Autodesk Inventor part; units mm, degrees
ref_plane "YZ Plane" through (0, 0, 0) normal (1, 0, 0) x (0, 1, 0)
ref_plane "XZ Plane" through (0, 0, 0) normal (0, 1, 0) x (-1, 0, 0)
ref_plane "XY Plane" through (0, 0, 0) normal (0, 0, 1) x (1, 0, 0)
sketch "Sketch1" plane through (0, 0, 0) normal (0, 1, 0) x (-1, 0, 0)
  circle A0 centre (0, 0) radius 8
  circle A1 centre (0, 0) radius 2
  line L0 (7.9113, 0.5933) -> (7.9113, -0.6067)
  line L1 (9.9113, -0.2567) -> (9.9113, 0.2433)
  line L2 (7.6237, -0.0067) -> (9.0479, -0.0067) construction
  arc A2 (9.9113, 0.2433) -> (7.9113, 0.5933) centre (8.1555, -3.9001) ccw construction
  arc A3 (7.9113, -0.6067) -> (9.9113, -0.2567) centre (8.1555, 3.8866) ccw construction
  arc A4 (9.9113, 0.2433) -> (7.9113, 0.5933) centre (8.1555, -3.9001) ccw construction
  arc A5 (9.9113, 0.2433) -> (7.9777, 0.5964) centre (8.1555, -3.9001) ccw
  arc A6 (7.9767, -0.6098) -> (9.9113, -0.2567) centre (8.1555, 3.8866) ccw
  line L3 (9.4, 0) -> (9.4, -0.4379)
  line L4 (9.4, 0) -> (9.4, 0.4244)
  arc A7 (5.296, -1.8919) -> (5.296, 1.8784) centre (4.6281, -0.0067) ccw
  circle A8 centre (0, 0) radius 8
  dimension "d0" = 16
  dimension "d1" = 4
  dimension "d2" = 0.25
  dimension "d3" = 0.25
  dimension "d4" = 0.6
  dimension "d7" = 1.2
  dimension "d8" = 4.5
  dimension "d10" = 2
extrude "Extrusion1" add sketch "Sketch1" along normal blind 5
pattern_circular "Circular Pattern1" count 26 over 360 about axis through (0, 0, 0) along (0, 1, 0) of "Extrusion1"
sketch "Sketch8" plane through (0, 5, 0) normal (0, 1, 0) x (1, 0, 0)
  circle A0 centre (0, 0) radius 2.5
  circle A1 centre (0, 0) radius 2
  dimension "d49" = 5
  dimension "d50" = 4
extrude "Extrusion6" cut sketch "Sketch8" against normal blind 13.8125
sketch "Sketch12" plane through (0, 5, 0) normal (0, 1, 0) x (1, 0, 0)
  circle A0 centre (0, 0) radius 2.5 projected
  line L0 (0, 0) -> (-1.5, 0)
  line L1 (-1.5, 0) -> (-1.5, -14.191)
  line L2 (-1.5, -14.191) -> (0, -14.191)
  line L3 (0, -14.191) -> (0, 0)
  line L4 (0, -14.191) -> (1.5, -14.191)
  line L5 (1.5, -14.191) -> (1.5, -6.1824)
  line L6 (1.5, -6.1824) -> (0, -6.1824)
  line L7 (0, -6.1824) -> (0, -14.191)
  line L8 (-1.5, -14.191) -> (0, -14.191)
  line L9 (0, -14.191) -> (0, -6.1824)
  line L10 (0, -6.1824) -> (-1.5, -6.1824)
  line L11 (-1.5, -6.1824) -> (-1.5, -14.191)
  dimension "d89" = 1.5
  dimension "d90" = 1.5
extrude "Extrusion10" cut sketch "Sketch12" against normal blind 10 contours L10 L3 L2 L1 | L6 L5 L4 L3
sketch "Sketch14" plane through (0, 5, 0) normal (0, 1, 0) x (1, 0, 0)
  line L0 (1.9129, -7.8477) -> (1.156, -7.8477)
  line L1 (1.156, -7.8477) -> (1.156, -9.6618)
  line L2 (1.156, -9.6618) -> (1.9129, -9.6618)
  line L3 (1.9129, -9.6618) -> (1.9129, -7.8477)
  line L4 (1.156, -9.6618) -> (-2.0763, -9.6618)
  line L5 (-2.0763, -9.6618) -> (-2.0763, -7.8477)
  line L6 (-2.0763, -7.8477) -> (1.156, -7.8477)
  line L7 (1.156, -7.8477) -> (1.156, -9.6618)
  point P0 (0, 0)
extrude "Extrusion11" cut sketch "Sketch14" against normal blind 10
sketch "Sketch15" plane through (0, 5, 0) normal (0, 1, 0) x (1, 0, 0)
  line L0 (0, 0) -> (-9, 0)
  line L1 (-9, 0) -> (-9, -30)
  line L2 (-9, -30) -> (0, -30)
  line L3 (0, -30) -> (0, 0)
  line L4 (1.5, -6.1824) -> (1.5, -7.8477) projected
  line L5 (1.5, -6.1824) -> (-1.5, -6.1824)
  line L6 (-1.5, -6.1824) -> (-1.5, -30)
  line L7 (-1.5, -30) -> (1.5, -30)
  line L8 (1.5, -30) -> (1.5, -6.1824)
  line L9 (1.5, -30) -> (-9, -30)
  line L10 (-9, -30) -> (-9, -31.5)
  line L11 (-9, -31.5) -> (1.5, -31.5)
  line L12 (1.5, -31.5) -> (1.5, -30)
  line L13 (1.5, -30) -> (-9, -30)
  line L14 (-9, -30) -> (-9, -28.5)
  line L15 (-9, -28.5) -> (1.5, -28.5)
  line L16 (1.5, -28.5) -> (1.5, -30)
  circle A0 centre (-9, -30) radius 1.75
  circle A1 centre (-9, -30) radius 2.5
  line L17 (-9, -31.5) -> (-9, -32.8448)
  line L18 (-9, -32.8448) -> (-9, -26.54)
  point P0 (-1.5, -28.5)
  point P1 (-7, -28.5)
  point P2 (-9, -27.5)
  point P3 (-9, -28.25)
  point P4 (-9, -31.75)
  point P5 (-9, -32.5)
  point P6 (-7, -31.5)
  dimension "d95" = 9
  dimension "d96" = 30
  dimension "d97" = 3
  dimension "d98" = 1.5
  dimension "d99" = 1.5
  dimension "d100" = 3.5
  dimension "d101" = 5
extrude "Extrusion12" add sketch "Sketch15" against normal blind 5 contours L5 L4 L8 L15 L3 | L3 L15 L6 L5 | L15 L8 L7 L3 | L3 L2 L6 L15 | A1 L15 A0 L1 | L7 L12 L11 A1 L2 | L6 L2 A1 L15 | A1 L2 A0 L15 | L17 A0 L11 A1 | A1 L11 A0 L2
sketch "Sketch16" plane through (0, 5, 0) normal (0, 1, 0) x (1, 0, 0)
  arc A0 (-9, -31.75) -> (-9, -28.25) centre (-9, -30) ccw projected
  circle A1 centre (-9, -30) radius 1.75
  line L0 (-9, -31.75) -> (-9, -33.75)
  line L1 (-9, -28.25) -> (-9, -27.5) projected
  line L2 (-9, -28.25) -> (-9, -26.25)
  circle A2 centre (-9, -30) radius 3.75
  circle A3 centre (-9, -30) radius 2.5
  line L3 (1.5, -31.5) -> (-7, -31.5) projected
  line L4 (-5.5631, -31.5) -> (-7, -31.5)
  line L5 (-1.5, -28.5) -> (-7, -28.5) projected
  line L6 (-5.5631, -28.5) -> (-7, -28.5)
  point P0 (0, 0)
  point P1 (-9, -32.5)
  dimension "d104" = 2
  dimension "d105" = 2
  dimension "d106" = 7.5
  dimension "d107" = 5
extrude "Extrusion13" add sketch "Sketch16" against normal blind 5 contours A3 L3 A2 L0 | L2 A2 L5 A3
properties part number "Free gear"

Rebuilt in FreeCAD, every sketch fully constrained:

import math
import FreeCAD as App
import Part
import Sketcher


def add_polygon(sketch, points):
    """Adds a closed chain of lines whose ends are joined by coincident constraints."""
    first, n = sketch.GeometryCount, len(points)
    for a, b in zip(points, points[1:] + points[:1]):
        sketch.addGeometry(Part.LineSegment(App.Vector(*a, 0), App.Vector(*b, 0)), False)
    for i in range(n):
        sketch.addConstraint(Sketcher.Constraint("Coincident", first + i, 2, first + (i + 1) % n, 1))

doc = App.newDocument("Part")
body = doc.addObject("PartDesign::Body", "Body")

sketch1 = body.newObject("Sketcher::SketchObject", "Sketch")
sketch1.AttachmentSupport = (doc.getObject("XZ_Plane"), [""])
sketch1.MapMode = "FlatFace"
sketch1.addGeometry([
    Part.ArcOfCircle(Part.Circle(App.Vector(0, 0, 0), App.Vector(0, 0, 1), 8), math.radians(-176), math.radians(176)),
    Part.ArcOfCircle(Part.Circle(App.Vector(-8.2, 3.9, 0), App.Vector(0, 0, 1), 4.5), math.radians(-113), math.radians(-88)),
    Part.LineSegment(App.Vector(-9.9, -0.3, 0), App.Vector(-9.9, 0.2, 0)),
    Part.ArcOfCircle(Part.Circle(App.Vector(-8.2, -3.9, 0), App.Vector(0, 0, 1), 4.5), math.radians(88), math.radians(113)),
    Part.Circle(App.Vector(0, 0, 0), App.Vector(0, 0, 1), 2),
], False)
sketch1.addConstraint([
    Sketcher.Constraint("Coincident", 0, 1, 1, 2),
    Sketcher.Constraint("Coincident", 1, 1, 2, 1),
    Sketcher.Constraint("Coincident", 2, 2, 3, 2),
    Sketcher.Constraint("Coincident", 3, 1, 0, 2),
    Sketcher.Constraint("Vertical", 2),
    Sketcher.Constraint("Coincident", 0, 3, -1, 1),
    Sketcher.Constraint("Coincident", 4, 3, -1, 1),
    Sketcher.Constraint("Diameter", 4, 4.0),
    Sketcher.Constraint("Radius", 0, 8.0),
    Sketcher.Constraint("Radius", 1, 4.5),
    Sketcher.Constraint("DistanceY", 2, 1, 2, 2, 0.5),
    Sketcher.Constraint("Radius", 3, 4.499),
    Sketcher.Constraint("DistanceY", 3, 3, -1, 1, 3.899),
    Sketcher.Constraint("DistanceX", 3, 3, 0, 1, 0.179),
    Sketcher.Constraint("DistanceY", 0, 1, 2, 2, 0.853),
    Sketcher.Constraint("DistanceX", 3, 1, 0, 1, 0.001),
])
pad1 = body.newObject("PartDesign::Pad", "Pad")
pad1.Profile = sketch1
pad1.Length = 5
pad1.Reversed = True
doc.recompute()

polarpattern = body.newObject("PartDesign::PolarPattern", "PolarPattern")
polarpattern.Originals = [pad1]
polarpattern.Axis = (doc.getObject("Y_Axis"), [""])
polarpattern.Angle = 360
polarpattern.Occurrences = 26
body.Tip = polarpattern

sketch2 = body.newObject("Sketcher::SketchObject", "Sketch001")
sketch2.AttachmentSupport = (doc.getObject("XZ_Plane"), [""])
sketch2.MapMode = "FlatFace"
sketch2.AttachmentOffset = App.Placement(App.Vector(0, 0, -5), App.Rotation())
sketch2.addGeometry([
    Part.Circle(App.Vector(0, 0, 0), App.Vector(0, 0, 1), 2.5),
    Part.Circle(App.Vector(0, 0, 0), App.Vector(0, 0, 1), 2),
], False)
sketch2.addConstraint([
    Sketcher.Constraint("Coincident", 0, 3, -1, 1),
    Sketcher.Constraint("Coincident", 1, 3, -1, 1),
    Sketcher.Constraint("Diameter", 0, 5.0),
    Sketcher.Constraint("Diameter", 1, 4.0),
])
pocket1 = body.newObject("PartDesign::Pocket", "Pocket")
pocket1.Profile = sketch2
pocket1.Length = 13.8125
pocket1.Reversed = True

sketch3 = body.newObject("Sketcher::SketchObject", "Sketch002")
sketch3.AttachmentSupport = (doc.getObject("XZ_Plane"), [""])
sketch3.MapMode = "FlatFace"
sketch3.AttachmentOffset = App.Placement(App.Vector(0, 0, -5), App.Rotation())
add_polygon(sketch3, [(-1.5, 6.2), (-1.5, 14.2), (1.5, 14.2), (1.5, 6.2)])
sketch3.addConstraint([
    Sketcher.Constraint("Vertical", 0),
    Sketcher.Constraint("Horizontal", 1),
    Sketcher.Constraint("Vertical", 2),
    Sketcher.Constraint("Horizontal", 3),
    Sketcher.Constraint("DistanceX", 0, 2, -1, 1, 1.5),
    Sketcher.Constraint("DistanceX", -1, 1, 1, 2, 1.5),
    Sketcher.Constraint("DistanceY", 0, 1, 0, 2, 8.0086),
    Sketcher.Constraint("DistanceY", -1, 1, 0, 2, 14.191),
])
pocket2 = body.newObject("PartDesign::Pocket", "Pocket001")
pocket2.Profile = sketch3
pocket2.Length = 10
pocket2.Reversed = True

sketch4 = body.newObject("Sketcher::SketchObject", "Sketch003")
sketch4.AttachmentSupport = (doc.getObject("XZ_Plane"), [""])
sketch4.MapMode = "FlatFace"
sketch4.AttachmentOffset = App.Placement(App.Vector(0, 0, -5), App.Rotation())
add_polygon(sketch4, [(1.9, 9.7), (1.9, 7.8), (-2.1, 7.8), (-2.1, 9.7)])
sketch4.addConstraint([
    Sketcher.Constraint("Vertical", 0),
    Sketcher.Constraint("Horizontal", 1),
    Sketcher.Constraint("Vertical", 2),
    Sketcher.Constraint("Horizontal", 3),
    Sketcher.Constraint("DistanceY", 0, 2, 0, 1, 1.814),
    Sketcher.Constraint("DistanceX", 1, 2, 1, 1, 3.9892),
    Sketcher.Constraint("DistanceX", -1, 1, 0, 2, 1.913),
    Sketcher.Constraint("DistanceY", -1, 1, 0, 2, 7.8477),
])
pocket3 = body.newObject("PartDesign::Pocket", "Pocket002")
pocket3.Profile = sketch4
pocket3.Length = 10
pocket3.Reversed = True

sketch5 = body.newObject("Sketcher::SketchObject", "Sketch004")
sketch5.AttachmentSupport = (doc.getObject("XZ_Plane"), [""])
sketch5.MapMode = "FlatFace"
sketch5.AttachmentOffset = App.Placement(App.Vector(0, 0, -5), App.Rotation())
sketch5.addGeometry([
    Part.LineSegment(App.Vector(1.5, 6.2, 0), App.Vector(-1.5, 6.2, 0)),
    Part.LineSegment(App.Vector(-1.5, 6.2, 0), App.Vector(-1.5, 28.5, 0)),
    Part.LineSegment(App.Vector(-1.5, 28.5, 0), App.Vector(-7, 28.5, 0)),
    Part.ArcOfCircle(Part.Circle(App.Vector(-9, 30, 0), App.Vector(0, 0, 1), 2.5), math.radians(-90), math.radians(-37)),
    Part.LineSegment(App.Vector(-9, 27.5, 0), App.Vector(-9, 28.2, 0)),
    Part.ArcOfCircle(Part.Circle(App.Vector(-9, 30, 0), App.Vector(0, 0, 1), 1.8), math.radians(-90), math.radians(90)),
    Part.LineSegment(App.Vector(-9, 31.8, 0), App.Vector(-9, 32.5, 0)),
    Part.ArcOfCircle(Part.Circle(App.Vector(-9, 30, 0), App.Vector(0, 0, 1), 2.5), math.radians(37), math.radians(90)),
    Part.LineSegment(App.Vector(-7, 31.5, 0), App.Vector(1.5, 31.5, 0)),
    Part.LineSegment(App.Vector(1.5, 31.5, 0), App.Vector(1.5, 6.2, 0)),
], False)
sketch5.addConstraint([
    Sketcher.Constraint("Coincident", 0, 2, 1, 1),
    Sketcher.Constraint("Coincident", 1, 2, 2, 1),
    Sketcher.Constraint("Coincident", 2, 2, 3, 2),
    Sketcher.Constraint("Coincident", 3, 1, 4, 1),
    Sketcher.Constraint("Coincident", 4, 2, 5, 1),
    Sketcher.Constraint("Coincident", 5, 2, 6, 1),
    Sketcher.Constraint("Coincident", 6, 2, 7, 2),
    Sketcher.Constraint("Coincident", 7, 1, 8, 1),
    Sketcher.Constraint("Coincident", 8, 2, 9, 1),
    Sketcher.Constraint("Coincident", 9, 2, 0, 1),
    Sketcher.Constraint("Horizontal", 0),
    Sketcher.Constraint("Vertical", 1),
    Sketcher.Constraint("Horizontal", 2),
    Sketcher.Constraint("Vertical", 4),
    Sketcher.Constraint("Vertical", 6),
    Sketcher.Constraint("Horizontal", 8),
    Sketcher.Constraint("Vertical", 9),
    Sketcher.Constraint("Coincident", 5, 3, 3, 3),
    Sketcher.Constraint("Coincident", 7, 3, 3, 3),
    Sketcher.Constraint("Equal", 3, 7),
    Sketcher.Constraint("Vertical", 7, 3, 3, 1),
    Sketcher.Constraint("Vertical", 4, 2, 5, 2),
    Sketcher.Constraint("Vertical", 2, 2, 7, 1),
    Sketcher.Constraint("Radius", 3, 2.5),
    Sketcher.Constraint("DistanceX", 0, 2, 0, 1, 3.0),
    Sketcher.Constraint("Radius", 5, 1.75),
    Sketcher.Constraint("DistanceX", 3, 3, -1, 1, 9.0),
    Sketcher.Constraint("DistanceY", -1, 1, 3, 3, 30.0),
    Sketcher.Constraint("DistanceY", 1, 2, 8, 2, 3.0),
    Sketcher.Constraint("DistanceX", 0, 2, -1, 1, 1.5),
    Sketcher.Constraint("DistanceY", 1, 1, 1, 2, 22.3176),
])
pad2 = body.newObject("PartDesign::Pad", "Pad001")
pad2.Profile = sketch5
pad2.Length = 5

sketch6 = body.newObject("Sketcher::SketchObject", "Sketch005")
sketch6.AttachmentSupport = (doc.getObject("XZ_Plane"), [""])
sketch6.MapMode = "FlatFace"
sketch6.AttachmentOffset = App.Placement(App.Vector(0, 0, -5), App.Rotation())
sketch6.addGeometry([
    Part.ArcOfCircle(Part.Circle(App.Vector(-9, 30, 0), App.Vector(0, 0, 1), 2.5), math.radians(37), math.radians(90)),
    Part.LineSegment(App.Vector(-9, 32.5, 0), App.Vector(-9, 33.8, 0)),
    Part.ArcOfCircle(Part.Circle(App.Vector(-9, 30, 0), App.Vector(0, 0, 1), 3.8), math.radians(24), math.radians(90)),
    Part.LineSegment(App.Vector(-5.6, 31.5, 0), App.Vector(-7, 31.5, 0)),
    Part.LineSegment(App.Vector(-9, 26.2, 0), App.Vector(-9, 27.5, 0)),
    Part.ArcOfCircle(Part.Circle(App.Vector(-9, 30, 0), App.Vector(0, 0, 1), 2.5), math.radians(-90), math.radians(-37)),
    Part.LineSegment(App.Vector(-7, 28.5, 0), App.Vector(-5.6, 28.5, 0)),
    Part.ArcOfCircle(Part.Circle(App.Vector(-9, 30, 0), App.Vector(0, 0, 1), 3.8), math.radians(-90), math.radians(-24)),
], False)
sketch6.addConstraint([
    Sketcher.Constraint("Coincident", 0, 2, 1, 1),
    Sketcher.Constraint("Coincident", 1, 2, 2, 2),
    Sketcher.Constraint("Coincident", 2, 1, 3, 1),
    Sketcher.Constraint("Coincident", 3, 2, 0, 1),
    Sketcher.Constraint("Coincident", 4, 2, 5, 1),
    Sketcher.Constraint("Coincident", 5, 2, 6, 1),
    Sketcher.Constraint("Coincident", 6, 2, 7, 2),
    Sketcher.Constraint("Coincident", 7, 1, 4, 1),
    Sketcher.Constraint("Vertical", 1),
    Sketcher.Constraint("Horizontal", 3),
    Sketcher.Constraint("Vertical", 4),
    Sketcher.Constraint("Horizontal", 6),
    Sketcher.Constraint("Coincident", 2, 3, 0, 3),
    Sketcher.Constraint("Coincident", 5, 3, 0, 3),
    Sketcher.Constraint("Coincident", 7, 3, 0, 3),
    Sketcher.Constraint("Equal", 0, 5),
    Sketcher.Constraint("Equal", 2, 7),
    Sketcher.Constraint("Vertical", 7, 3, 0, 2),
    Sketcher.Constraint("Vertical", 1, 2, 4, 2),
    Sketcher.Constraint("Vertical", 3, 2, 5, 2),
    Sketcher.Constraint("Radius", 0, 2.5),
    Sketcher.Constraint("Radius", 2, 3.75),
    Sketcher.Constraint("DistanceX", 0, 2, 3, 2, 2.0),
    Sketcher.Constraint("DistanceX", 0, 3, -1, 1, 9.0),
    Sketcher.Constraint("DistanceY", -1, 1, 0, 3, 30.0),
])
pad3 = body.newObject("PartDesign::Pad", "Pad002")
pad3.Profile = sketch6
pad3.Length = 5

doc.recompute()
